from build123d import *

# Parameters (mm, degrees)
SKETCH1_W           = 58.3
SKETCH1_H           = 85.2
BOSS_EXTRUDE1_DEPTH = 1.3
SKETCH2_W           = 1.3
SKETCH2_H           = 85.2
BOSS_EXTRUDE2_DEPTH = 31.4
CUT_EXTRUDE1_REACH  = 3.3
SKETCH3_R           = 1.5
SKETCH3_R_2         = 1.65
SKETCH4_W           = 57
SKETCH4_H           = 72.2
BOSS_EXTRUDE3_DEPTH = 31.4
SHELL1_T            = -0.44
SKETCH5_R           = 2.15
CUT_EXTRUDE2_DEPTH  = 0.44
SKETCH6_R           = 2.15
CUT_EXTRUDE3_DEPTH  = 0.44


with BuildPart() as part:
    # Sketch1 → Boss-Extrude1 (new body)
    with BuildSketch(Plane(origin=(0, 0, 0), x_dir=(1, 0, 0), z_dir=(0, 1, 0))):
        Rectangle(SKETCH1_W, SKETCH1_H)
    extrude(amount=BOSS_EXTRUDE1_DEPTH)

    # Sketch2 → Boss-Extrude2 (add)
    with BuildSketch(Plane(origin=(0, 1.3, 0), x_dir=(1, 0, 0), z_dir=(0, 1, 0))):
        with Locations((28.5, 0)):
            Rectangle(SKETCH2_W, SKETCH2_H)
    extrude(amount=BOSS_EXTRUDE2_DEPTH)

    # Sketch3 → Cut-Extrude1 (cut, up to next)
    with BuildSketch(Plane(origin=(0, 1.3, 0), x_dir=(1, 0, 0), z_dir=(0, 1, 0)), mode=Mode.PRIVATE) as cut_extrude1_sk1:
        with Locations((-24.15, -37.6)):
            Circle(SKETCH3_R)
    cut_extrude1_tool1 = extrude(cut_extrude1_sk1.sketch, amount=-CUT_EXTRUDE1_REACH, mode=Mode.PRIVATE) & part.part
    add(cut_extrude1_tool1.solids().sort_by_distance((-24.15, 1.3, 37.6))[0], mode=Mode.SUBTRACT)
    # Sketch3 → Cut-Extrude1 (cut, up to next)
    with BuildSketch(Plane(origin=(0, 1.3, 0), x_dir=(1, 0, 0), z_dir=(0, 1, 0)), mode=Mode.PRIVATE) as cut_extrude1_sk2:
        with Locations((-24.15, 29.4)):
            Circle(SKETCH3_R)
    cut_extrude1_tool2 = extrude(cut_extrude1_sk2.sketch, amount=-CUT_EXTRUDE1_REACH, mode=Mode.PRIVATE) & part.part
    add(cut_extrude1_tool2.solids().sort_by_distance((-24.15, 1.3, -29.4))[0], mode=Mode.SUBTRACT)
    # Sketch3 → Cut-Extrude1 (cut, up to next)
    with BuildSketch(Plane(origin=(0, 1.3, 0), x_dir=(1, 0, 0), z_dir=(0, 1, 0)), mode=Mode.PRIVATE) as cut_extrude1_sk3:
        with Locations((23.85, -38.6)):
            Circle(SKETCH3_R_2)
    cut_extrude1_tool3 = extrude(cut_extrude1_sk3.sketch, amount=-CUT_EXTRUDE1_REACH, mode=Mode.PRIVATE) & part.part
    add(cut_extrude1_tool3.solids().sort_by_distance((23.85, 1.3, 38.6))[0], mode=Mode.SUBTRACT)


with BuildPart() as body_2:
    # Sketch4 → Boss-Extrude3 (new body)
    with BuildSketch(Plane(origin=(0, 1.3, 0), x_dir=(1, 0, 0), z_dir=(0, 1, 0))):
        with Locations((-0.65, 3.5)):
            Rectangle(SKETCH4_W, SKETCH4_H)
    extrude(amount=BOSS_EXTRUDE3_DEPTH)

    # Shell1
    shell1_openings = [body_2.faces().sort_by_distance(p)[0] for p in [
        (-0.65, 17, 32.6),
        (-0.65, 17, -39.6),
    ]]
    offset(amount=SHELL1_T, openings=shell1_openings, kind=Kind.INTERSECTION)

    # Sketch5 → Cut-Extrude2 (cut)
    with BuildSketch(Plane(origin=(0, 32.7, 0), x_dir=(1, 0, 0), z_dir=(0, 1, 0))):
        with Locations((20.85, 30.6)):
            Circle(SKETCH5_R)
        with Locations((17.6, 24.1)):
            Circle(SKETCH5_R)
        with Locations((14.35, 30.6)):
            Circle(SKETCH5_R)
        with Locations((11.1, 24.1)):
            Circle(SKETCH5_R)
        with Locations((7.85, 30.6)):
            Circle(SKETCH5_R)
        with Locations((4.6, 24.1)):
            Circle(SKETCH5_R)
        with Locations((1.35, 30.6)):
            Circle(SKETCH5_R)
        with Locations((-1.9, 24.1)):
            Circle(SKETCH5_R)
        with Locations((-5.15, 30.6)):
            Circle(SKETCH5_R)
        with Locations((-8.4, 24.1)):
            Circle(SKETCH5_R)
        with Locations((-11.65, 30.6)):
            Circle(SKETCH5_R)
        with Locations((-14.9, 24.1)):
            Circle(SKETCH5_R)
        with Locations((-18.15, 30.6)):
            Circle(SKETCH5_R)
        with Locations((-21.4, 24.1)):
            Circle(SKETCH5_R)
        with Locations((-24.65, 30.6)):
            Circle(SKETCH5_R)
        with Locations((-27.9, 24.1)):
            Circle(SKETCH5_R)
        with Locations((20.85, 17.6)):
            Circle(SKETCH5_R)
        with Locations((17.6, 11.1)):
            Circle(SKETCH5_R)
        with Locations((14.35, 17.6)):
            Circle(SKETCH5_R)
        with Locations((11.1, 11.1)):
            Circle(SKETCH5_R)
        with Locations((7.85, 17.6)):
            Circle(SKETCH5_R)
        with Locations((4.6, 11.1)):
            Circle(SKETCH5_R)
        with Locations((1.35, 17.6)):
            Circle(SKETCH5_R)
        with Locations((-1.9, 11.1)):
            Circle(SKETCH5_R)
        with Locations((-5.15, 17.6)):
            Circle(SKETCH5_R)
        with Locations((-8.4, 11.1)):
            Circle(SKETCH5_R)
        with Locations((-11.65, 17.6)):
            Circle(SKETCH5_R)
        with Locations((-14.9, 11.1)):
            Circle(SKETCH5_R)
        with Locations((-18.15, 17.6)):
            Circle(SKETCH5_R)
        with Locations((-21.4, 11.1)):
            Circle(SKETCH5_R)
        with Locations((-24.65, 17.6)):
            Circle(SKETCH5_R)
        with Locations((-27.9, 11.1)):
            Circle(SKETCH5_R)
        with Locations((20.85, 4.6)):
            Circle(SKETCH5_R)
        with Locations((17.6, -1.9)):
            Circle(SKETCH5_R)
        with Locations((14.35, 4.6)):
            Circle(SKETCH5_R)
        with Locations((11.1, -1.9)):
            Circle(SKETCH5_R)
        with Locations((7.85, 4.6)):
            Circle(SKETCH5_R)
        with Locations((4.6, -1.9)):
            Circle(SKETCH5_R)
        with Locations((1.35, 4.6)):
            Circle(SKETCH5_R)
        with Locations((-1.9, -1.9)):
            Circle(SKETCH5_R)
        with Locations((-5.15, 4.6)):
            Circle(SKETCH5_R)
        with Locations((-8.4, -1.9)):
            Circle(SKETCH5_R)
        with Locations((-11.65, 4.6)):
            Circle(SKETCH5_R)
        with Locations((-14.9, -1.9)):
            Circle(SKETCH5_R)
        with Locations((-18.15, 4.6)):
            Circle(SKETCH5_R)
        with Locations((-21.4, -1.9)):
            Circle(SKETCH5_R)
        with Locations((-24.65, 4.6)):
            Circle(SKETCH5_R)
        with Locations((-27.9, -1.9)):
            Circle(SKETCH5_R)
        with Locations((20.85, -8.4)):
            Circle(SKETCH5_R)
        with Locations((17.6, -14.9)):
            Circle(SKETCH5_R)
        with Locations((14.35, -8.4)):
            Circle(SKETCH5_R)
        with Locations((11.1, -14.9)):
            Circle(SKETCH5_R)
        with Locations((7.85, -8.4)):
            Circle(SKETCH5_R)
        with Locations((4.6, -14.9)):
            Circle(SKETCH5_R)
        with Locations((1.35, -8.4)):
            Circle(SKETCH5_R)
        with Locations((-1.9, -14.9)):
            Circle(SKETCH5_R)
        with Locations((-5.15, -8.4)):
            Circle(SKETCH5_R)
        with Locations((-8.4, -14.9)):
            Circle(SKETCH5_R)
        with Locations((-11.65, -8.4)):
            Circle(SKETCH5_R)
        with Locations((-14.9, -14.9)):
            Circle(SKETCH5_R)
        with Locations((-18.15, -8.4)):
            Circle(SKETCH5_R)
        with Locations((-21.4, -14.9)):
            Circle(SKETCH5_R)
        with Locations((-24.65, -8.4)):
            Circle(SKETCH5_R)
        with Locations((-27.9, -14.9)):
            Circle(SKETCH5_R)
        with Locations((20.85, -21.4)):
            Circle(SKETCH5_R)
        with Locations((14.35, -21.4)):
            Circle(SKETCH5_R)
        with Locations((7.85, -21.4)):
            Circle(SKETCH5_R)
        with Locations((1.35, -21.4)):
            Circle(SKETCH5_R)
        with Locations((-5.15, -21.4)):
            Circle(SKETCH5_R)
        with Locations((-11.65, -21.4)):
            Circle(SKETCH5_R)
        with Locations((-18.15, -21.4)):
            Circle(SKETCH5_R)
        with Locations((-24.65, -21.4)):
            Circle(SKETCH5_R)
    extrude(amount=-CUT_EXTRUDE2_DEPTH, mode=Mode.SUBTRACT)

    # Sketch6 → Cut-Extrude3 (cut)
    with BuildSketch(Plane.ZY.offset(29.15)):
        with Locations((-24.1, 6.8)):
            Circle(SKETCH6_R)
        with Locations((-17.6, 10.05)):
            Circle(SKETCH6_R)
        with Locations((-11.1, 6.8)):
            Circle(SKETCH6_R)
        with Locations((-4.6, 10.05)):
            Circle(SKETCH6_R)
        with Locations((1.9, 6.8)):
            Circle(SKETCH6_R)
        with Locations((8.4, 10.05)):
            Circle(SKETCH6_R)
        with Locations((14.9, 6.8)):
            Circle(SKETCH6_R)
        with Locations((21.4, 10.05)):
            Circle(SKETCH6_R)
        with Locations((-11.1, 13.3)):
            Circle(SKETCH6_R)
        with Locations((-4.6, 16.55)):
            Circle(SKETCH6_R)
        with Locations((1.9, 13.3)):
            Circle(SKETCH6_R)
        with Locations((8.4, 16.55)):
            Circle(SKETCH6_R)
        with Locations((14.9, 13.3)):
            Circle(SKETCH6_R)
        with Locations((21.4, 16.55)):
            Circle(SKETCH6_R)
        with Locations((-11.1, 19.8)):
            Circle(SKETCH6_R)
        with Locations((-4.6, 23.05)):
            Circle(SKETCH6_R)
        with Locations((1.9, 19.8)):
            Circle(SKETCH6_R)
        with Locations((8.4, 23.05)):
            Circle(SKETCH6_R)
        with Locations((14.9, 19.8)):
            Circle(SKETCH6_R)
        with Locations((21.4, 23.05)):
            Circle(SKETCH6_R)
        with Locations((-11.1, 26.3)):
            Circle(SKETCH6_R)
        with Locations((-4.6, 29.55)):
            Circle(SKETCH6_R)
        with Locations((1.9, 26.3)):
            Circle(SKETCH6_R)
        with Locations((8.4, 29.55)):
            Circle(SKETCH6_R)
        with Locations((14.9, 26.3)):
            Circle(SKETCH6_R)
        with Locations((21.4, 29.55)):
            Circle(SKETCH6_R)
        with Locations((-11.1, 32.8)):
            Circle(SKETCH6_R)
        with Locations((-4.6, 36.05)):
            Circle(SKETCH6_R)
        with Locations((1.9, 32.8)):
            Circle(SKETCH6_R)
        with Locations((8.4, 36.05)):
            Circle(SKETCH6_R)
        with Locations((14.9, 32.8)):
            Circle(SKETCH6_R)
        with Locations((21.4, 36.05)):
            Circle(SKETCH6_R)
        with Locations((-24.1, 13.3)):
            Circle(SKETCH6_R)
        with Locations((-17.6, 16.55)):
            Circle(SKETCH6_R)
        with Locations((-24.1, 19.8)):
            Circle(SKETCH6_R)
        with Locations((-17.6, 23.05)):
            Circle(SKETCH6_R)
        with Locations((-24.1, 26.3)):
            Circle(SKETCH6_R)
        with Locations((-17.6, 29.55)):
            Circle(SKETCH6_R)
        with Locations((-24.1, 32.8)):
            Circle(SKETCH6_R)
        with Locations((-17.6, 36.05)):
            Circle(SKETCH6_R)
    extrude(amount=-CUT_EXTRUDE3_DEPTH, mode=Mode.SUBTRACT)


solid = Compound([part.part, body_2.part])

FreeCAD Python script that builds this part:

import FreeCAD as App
import Part
import Sketcher
from FreeCAD import Vector
Q = App.Units.Quantity


def faces_at(feature, points):
    """Names of the faces that lie closest to the given points."""
    faces = feature.Shape.Faces
    near = lambda p: min(range(len(faces)), key=lambda i: faces[i].distToShape(Part.Vertex(*p))[0])
    return sorted({f"Face{near(p) + 1}" for p in points})


def add_polygon(sketch, points):
    """Adds a closed chain of lines whose ends are joined by coincident constraints."""
    first, n = sketch.GeometryCount, len(points)
    for a, b in zip(points, points[1:] + points[:1]):
        sketch.addGeometry(Part.LineSegment(App.Vector(*a, 0), App.Vector(*b, 0)), False)
    for i in range(n):
        sketch.addConstraint(Sketcher.Constraint("Coincident", first + i, 2, first + (i + 1) % n, 1))

doc = App.newDocument("Part")
params = doc.addObject("Spreadsheet::Sheet", "Params")
for row, (alias, value) in enumerate([
    ("sketch1_width", "58.3 mm"),
    ("sketch1_height", "85.2 mm"),
    ("pad1_length", "1.3 mm"),
    ("sketch2_width", "1.3 mm"),
    ("sketch2_height", "85.2 mm"),
    ("pad2_length", "31.4 mm"),
    ("sketch3_diameter", "3 mm"),
    ("sketch4_diameter", "3 mm"),
    ("sketch5_diameter", "3.3 mm"),
    ("sketch6_width", "57 mm"),
    ("sketch6_height", "72.2 mm"),
    ("pad3_length", "31.4 mm"),
    ("thickness_wall", "0.44 mm"),
    ("sketch7_diameter", "4.3 mm"),
    ("pocket4_length", "0.44 mm"),
    ("sketch8_diameter", "4.3 mm"),
    ("pocket5_length", "0.44 mm"),
], start=1):
    params.set(f"A{row}", alias)
    params.set(f"B{row}", "=" + value)
    params.setAlias(f"B{row}", alias)

body = doc.addObject("PartDesign::Body", "Body")

sketch1 = body.newObject("Sketcher::SketchObject", "Sketch")
sketch1.AttachmentSupport = (doc.getObject("XZ_Plane"), [""])
sketch1.MapMode = "FlatFace"
add_polygon(sketch1, [(-29, -43), (-29, 43), (29, 43), (29, -43)])
sketch1.addConstraint(Sketcher.Constraint("Vertical", 0))
sketch1.addConstraint(Sketcher.Constraint("Horizontal", 1))
sketch1.addConstraint(Sketcher.Constraint("Vertical", 2))
sketch1.addConstraint(Sketcher.Constraint("Horizontal", 3))
sketch1.addConstraint(Sketcher.Constraint("Symmetric", 0, 2, 2, 2, -1, 1))
sketch1.addConstraint(Sketcher.Constraint("DistanceX", 1, 1, 1, 2, Q("58.3 mm")))
sketch1.addConstraint(Sketcher.Constraint("DistanceY", 0, 1, 0, 2, Q("85.2 mm")))
sketch1.setExpression("Constraints[9]", "Params.sketch1_width")
sketch1.setExpression("Constraints[10]", "Params.sketch1_height")
pad1 = body.newObject("PartDesign::Pad", "Pad")
pad1.Profile = sketch1
pad1.setExpression("Length", "Params.pad1_length")
pad1.Reversed = True

sketch2 = body.newObject("Sketcher::SketchObject", "Sketch001")
sketch2.AttachmentSupport = (doc.getObject("XZ_Plane"), [""])
sketch2.MapMode = "FlatFace"
sketch2.AttachmentOffset = App.Placement(Vector(0, 0, -1.3), App.Rotation())
add_polygon(sketch2, [(27.9, -42.6), (27.9, 42.6), (29.1, 42.6), (29.1, -42.6)])
sketch2.addConstraint(Sketcher.Constraint("Vertical", 0))
sketch2.addConstraint(Sketcher.Constraint("Horizontal", 1))
sketch2.addConstraint(Sketcher.Constraint("Vertical", 2))
sketch2.addConstraint(Sketcher.Constraint("Horizontal", 3))
sketch2.addConstraint(Sketcher.Constraint("DistanceX", 1, 1, 1, 2, Q("1.3 mm")))
sketch2.addConstraint(Sketcher.Constraint("DistanceY", 0, 1, 0, 2, Q("85.2 mm")))
sketch2.addConstraint(Sketcher.Constraint("DistanceY", -1, 1, 0, 2, Q("42.6 mm")))
sketch2.addConstraint(Sketcher.Constraint("DistanceX", -1, 1, 0, 2, Q("27.85 mm")))
sketch2.setExpression("Constraints[8]", "Params.sketch2_width")
sketch2.setExpression("Constraints[9]", "Params.sketch2_height")
pad2 = body.newObject("PartDesign::Pad", "Pad001")
pad2.Profile = sketch2
pad2.setExpression("Length", "Params.pad2_length")
pad2.Reversed = True

sketch3 = body.newObject("Sketcher::SketchObject", "Sketch002")
sketch3.AttachmentSupport = (doc.getObject("XZ_Plane"), [""])
sketch3.MapMode = "FlatFace"
sketch3.AttachmentOffset = App.Placement(Vector(0, 0, -1.3), App.Rotation())
sketch3.addGeometry(Part.Circle(Vector(-24.1, 37.6, 0), Vector(0, 0, 1), 1.5), False)
sketch3.addConstraint(Sketcher.Constraint("Diameter", 0, Q("3 mm")))
sketch3.addConstraint(Sketcher.Constraint("DistanceY", -1, 1, 0, 3, Q("37.6 mm")))
sketch3.addConstraint(Sketcher.Constraint("DistanceX", 0, 3, -1, 1, Q("24.15 mm")))
sketch3.setExpression("Constraints[0]", "Params.sketch3_diameter")
pocket1 = body.newObject("PartDesign::Pocket", "Pocket")
pocket1.Profile = sketch3
pocket1.Type = "UpToFirst"
pocket1.Reversed = True

sketch4 = body.newObject("Sketcher::SketchObject", "Sketch003")
sketch4.AttachmentSupport = (doc.getObject("XZ_Plane"), [""])
sketch4.MapMode = "FlatFace"
sketch4.AttachmentOffset = App.Placement(Vector(0, 0, -1.3), App.Rotation())
sketch4.addGeometry(Part.Circle(Vector(-24.1, -29.4, 0), Vector(0, 0, 1), 1.5), False)
sketch4.addConstraint(Sketcher.Constraint("Diameter", 0, Q("3 mm")))
sketch4.addConstraint(Sketcher.Constraint("DistanceY", 0, 3, -1, 1, Q("29.4 mm")))
sketch4.addConstraint(Sketcher.Constraint("DistanceX", 0, 3, -1, 1, Q("24.15 mm")))
sketch4.setExpression("Constraints[0]", "Params.sketch4_diameter")
pocket2 = body.newObject("PartDesign::Pocket", "Pocket001")
pocket2.Profile = sketch4
pocket2.Type = "UpToFirst"
pocket2.Reversed = True

sketch5 = body.newObject("Sketcher::SketchObject", "Sketch004")
sketch5.AttachmentSupport = (doc.getObject("XZ_Plane"), [""])
sketch5.MapMode = "FlatFace"
sketch5.AttachmentOffset = App.Placement(Vector(0, 0, -1.3), App.Rotation())
sketch5.addGeometry(Part.Circle(Vector(23.9, 38.6, 0), Vector(0, 0, 1), 1.6), False)
sketch5.addConstraint(Sketcher.Constraint("Diameter", 0, Q("3.3 mm")))
sketch5.addConstraint(Sketcher.Constraint("DistanceY", -1, 1, 0, 3, Q("38.6 mm")))
sketch5.addConstraint(Sketcher.Constraint("DistanceX", -1, 1, 0, 3, Q("23.85 mm")))
sketch5.setExpression("Constraints[0]", "Params.sketch5_diameter")
pocket3 = body.newObject("PartDesign::Pocket", "Pocket002")
pocket3.Profile = sketch5
pocket3.Type = "UpToFirst"
pocket3.Reversed = True
body2 = doc.addObject("PartDesign::Body", "Body001")

sketch6 = body2.newObject("Sketcher::SketchObject", "Sketch005")
sketch6.AttachmentSupport = (doc.getObject("XZ_Plane001"), [""])
sketch6.MapMode = "FlatFace"
sketch6.AttachmentOffset = App.Placement(Vector(0, 0, -1.3), App.Rotation())
add_polygon(sketch6, [(-29, -40), (-29, 33), (28, 33), (28, -40)])
sketch6.addConstraint(Sketcher.Constraint("Vertical", 0))
sketch6.addConstraint(Sketcher.Constraint("Horizontal", 1))
sketch6.addConstraint(Sketcher.Constraint("Vertical", 2))
sketch6.addConstraint(Sketcher.Constraint("Horizontal", 3))
sketch6.addConstraint(Sketcher.Constraint("DistanceX", 1, 1, 1, 2, Q("57 mm")))
sketch6.addConstraint(Sketcher.Constraint("DistanceY", 0, 1, 0, 2, Q("72.2 mm")))
sketch6.addConstraint(Sketcher.Constraint("DistanceY", -1, 1, 0, 2, Q("32.6 mm")))
sketch6.addConstraint(Sketcher.Constraint("DistanceX", 0, 2, -1, 1, Q("29.15 mm")))
sketch6.setExpression("Constraints[8]", "Params.sketch6_width")
sketch6.setExpression("Constraints[9]", "Params.sketch6_height")
pad3 = body2.newObject("PartDesign::Pad", "Pad002")
pad3.Profile = sketch6
pad3.setExpression("Length", "Params.pad3_length")
pad3.Reversed = True
doc.recompute()

thickness = body2.newObject("PartDesign::Thickness", "Thickness")
thickness.Base = (pad3, faces_at(pad3, [(-0.65, 17, 32.6), (-0.65, 17, -39.6)]))
thickness.setExpression("Value", "Params.thickness_wall")
thickness.Reversed = True
thickness.Join = "Intersection"

sketch7 = body2.newObject("Sketcher::SketchObject", "Sketch006")
sketch7.AttachmentSupport = (doc.getObject("XZ_Plane001"), [""])
sketch7.MapMode = "FlatFace"
sketch7.AttachmentOffset = App.Placement(Vector(0, 0, -32.7), App.Rotation())
sketch7.addGeometry(Part.Circle(Vector(20.9, -30.6, 0), Vector(0, 0, 1), 2.1), False)
sketch7.addGeometry(Part.Circle(Vector(17.6, -24.1, 0), Vector(0, 0, 1), 2.1), False)
sketch7.addGeometry(Part.Circle(Vector(14.3, -30.6, 0), Vector(0, 0, 1), 2.1), False)
sketch7.addGeometry(Part.Circle(Vector(11.1, -24.1, 0), Vector(0, 0, 1), 2.1), False)
sketch7.addGeometry(Part.Circle(Vector(7.8, -30.6, 0), Vector(0, 0, 1), 2.1), False)
sketch7.addGeometry(Part.Circle(Vector(4.6, -24.1, 0), Vector(0, 0, 1), 2.1), False)
sketch7.addGeometry(Part.Circle(Vector(1.4, -30.6, 0), Vector(0, 0, 1), 2.1), False)
sketch7.addGeometry(Part.Circle(Vector(-1.9, -24.1, 0), Vector(0, 0, 1), 2.1), False)
sketch7.addGeometry(Part.Circle(Vector(-5.2, -30.6, 0), Vector(0, 0, 1), 2.1), False)
sketch7.addGeometry(Part.Circle(Vector(-8.4, -24.1, 0), Vector(0, 0, 1), 2.1), False)
sketch7.addGeometry(Part.Circle(Vector(-11.7, -30.6, 0), Vector(0, 0, 1), 2.1), False)
sketch7.addGeometry(Part.Circle(Vector(-14.9, -24.1, 0), Vector(0, 0, 1), 2.1), False)
sketch7.addGeometry(Part.Circle(Vector(-18.1, -30.6, 0), Vector(0, 0, 1), 2.1), False)
sketch7.addGeometry(Part.Circle(Vector(-21.4, -24.1, 0), Vector(0, 0, 1), 2.1), False)
sketch7.addGeometry(Part.Circle(Vector(-24.6, -30.6, 0), Vector(0, 0, 1), 2.1), False)
sketch7.addGeometry(Part.Circle(Vector(-27.9, -24.1, 0), Vector(0, 0, 1), 2.1), False)
sketch7.addGeometry(Part.Circle(Vector(20.9, -17.6, 0), Vector(0, 0, 1), 2.1), False)
sketch7.addGeometry(Part.Circle(Vector(17.6, -11.1, 0), Vector(0, 0, 1), 2.1), False)
sketch7.addGeometry(Part.Circle(Vector(14.3, -17.6, 0), Vector(0, 0, 1), 2.1), False)
sketch7.addGeometry(Part.Circle(Vector(11.1, -11.1, 0), Vector(0, 0, 1), 2.1), False)
sketch7.addGeometry(Part.Circle(Vector(7.8, -17.6, 0), Vector(0, 0, 1), 2.1), False)
sketch7.addGeometry(Part.Circle(Vector(4.6, -11.1, 0), Vector(0, 0, 1), 2.1), False)
sketch7.addGeometry(Part.Circle(Vector(1.4, -17.6, 0), Vector(0, 0, 1), 2.1), False)
sketch7.addGeometry(Part.Circle(Vector(-1.9, -11.1, 0), Vector(0, 0, 1), 2.1), False)
sketch7.addGeometry(Part.Circle(Vector(-5.2, -17.6, 0), Vector(0, 0, 1), 2.1), False)
sketch7.addGeometry(Part.Circle(Vector(-8.4, -11.1, 0), Vector(0, 0, 1), 2.1), False)
sketch7.addGeometry(Part.Circle(Vector(-11.7, -17.6, 0), Vector(0, 0, 1), 2.1), False)
sketch7.addGeometry(Part.Circle(Vector(-14.9, -11.1, 0), Vector(0, 0, 1), 2.1), False)
sketch7.addGeometry(Part.Circle(Vector(-18.1, -17.6, 0), Vector(0, 0, 1), 2.1), False)
sketch7.addGeometry(Part.Circle(Vector(-21.4, -11.1, 0), Vector(0, 0, 1), 2.1), False)
sketch7.addGeometry(Part.Circle(Vector(-24.6, -17.6, 0), Vector(0, 0, 1), 2.1), False)
sketch7.addGeometry(Part.Circle(Vector(-27.9, -11.1, 0), Vector(0, 0, 1), 2.1), False)
sketch7.addGeometry(Part.Circle(Vector(20.9, -4.6, 0), Vector(0, 0, 1), 2.1), False)
sketch7.addGeometry(Part.Circle(Vector(17.6, 1.9, 0), Vector(0, 0, 1), 2.1), False)
sketch7.addGeometry(Part.Circle(Vector(14.3, -4.6, 0), Vector(0, 0, 1), 2.1), False)
sketch7.addGeometry(Part.Circle(Vector(11.1, 1.9, 0), Vector(0, 0, 1), 2.1), False)
sketch7.addGeometry(Part.Circle(Vector(7.8, -4.6, 0), Vector(0, 0, 1), 2.1), False)
sketch7.addGeometry(Part.Circle(Vector(4.6, 1.9, 0), Vector(0, 0, 1), 2.1), False)
sketch7.addGeometry(Part.Circle(Vector(1.4, -4.6, 0), Vector(0, 0, 1), 2.1), False)
sketch7.addGeometry(Part.Circle(Vector(-1.9, 1.9, 0), Vector(0, 0, 1), 2.1), False)
sketch7.addGeometry(Part.Circle(Vector(-5.2, -4.6, 0), Vector(0, 0, 1), 2.1), False)
sketch7.addGeometry(Part.Circle(Vector(-8.4, 1.9, 0), Vector(0, 0, 1), 2.1), False)
sketch7.addGeometry(Part.Circle(Vector(-11.7, -4.6, 0), Vector(0, 0, 1), 2.1), False)
sketch7.addGeometry(Part.Circle(Vector(-14.9, 1.9, 0), Vector(0, 0, 1), 2.1), False)
sketch7.addGeometry(Part.Circle(Vector(-18.1, -4.6, 0), Vector(0, 0, 1), 2.1), False)
sketch7.addGeometry(Part.Circle(Vector(-21.4, 1.9, 0), Vector(0, 0, 1), 2.1), False)
sketch7.addGeometry(Part.Circle(Vector(-24.6, -4.6, 0), Vector(0, 0, 1), 2.1), False)
sketch7.addGeometry(Part.Circle(Vector(-27.9, 1.9, 0), Vector(0, 0, 1), 2.1), False)
sketch7.addGeometry(Part.Circle(Vector(20.9, 8.4, 0), Vector(0, 0, 1), 2.1), False)
sketch7.addGeometry(Part.Circle(Vector(17.6, 14.9, 0), Vector(0, 0, 1), 2.1), False)
sketch7.addGeometry(Part.Circle(Vector(14.3, 8.4, 0), Vector(0, 0, 1), 2.1), False)
sketch7.addGeometry(Part.Circle(Vector(11.1, 14.9, 0), Vector(0, 0, 1), 2.1), False)
sketch7.addGeometry(Part.Circle(Vector(7.8, 8.4, 0), Vector(0, 0, 1), 2.1), False)
sketch7.addGeometry(Part.Circle(Vector(4.6, 14.9, 0), Vector(0, 0, 1), 2.1), False)
sketch7.addGeometry(Part.Circle(Vector(1.4, 8.4, 0), Vector(0, 0, 1), 2.1), False)
sketch7.addGeometry(Part.Circle(Vector(-1.9, 14.9, 0), Vector(0, 0, 1), 2.1), False)
sketch7.addGeometry(Part.Circle(Vector(-5.2, 8.4, 0), Vector(0, 0, 1), 2.1), False)
sketch7.addGeometry(Part.Circle(Vector(-8.4, 14.9, 0), Vector(0, 0, 1), 2.1), False)
sketch7.addGeometry(Part.Circle(Vector(-11.7, 8.4, 0), Vector(0, 0, 1), 2.1), False)
sketch7.addGeometry(Part.Circle(Vector(-14.9, 14.9, 0), Vector(0, 0, 1), 2.1), False)
sketch7.addGeometry(Part.Circle(Vector(-18.1, 8.4, 0), Vector(0, 0, 1), 2.1), False)
sketch7.addGeometry(Part.Circle(Vector(-21.4, 14.9, 0), Vector(0, 0, 1), 2.1), False)
sketch7.addGeometry(Part.Circle(Vector(-24.6, 8.4, 0), Vector(0, 0, 1), 2.1), False)
sketch7.addGeometry(Part.Circle(Vector(-27.9, 14.9, 0), Vector(0, 0, 1), 2.1), False)
sketch7.addGeometry(Part.Circle(Vector(20.9, 21.4, 0), Vector(0, 0, 1), 2.1), False)
sketch7.addGeometry(Part.Circle(Vector(14.3, 21.4, 0), Vector(0, 0, 1), 2.1), False)
sketch7.addGeometry(Part.Circle(Vector(7.8, 21.4, 0), Vector(0, 0, 1), 2.1), False)
sketch7.addGeometry(Part.Circle(Vector(1.4, 21.4, 0), Vector(0, 0, 1), 2.1), False)
sketch7.addGeometry(Part.Circle(Vector(-5.2, 21.4, 0), Vector(0, 0, 1), 2.1), False)
sketch7.addGeometry(Part.Circle(Vector(-11.7, 21.4, 0), Vector(0, 0, 1), 2.1), False)
sketch7.addGeometry(Part.Circle(Vector(-18.1, 21.4, 0), Vector(0, 0, 1), 2.1), False)
sketch7.addGeometry(Part.Circle(Vector(-24.6, 21.4, 0), Vector(0, 0, 1), 2.1), False)
sketch7.addConstraint(Sketcher.Constraint("Equal", 0, 1))
sketch7.addConstraint(Sketcher.Constraint("Equal", 1, 2))
sketch7.addConstraint(Sketcher.Constraint("Equal", 2, 3))
sketch7.addConstraint(Sketcher.Constraint("Equal", 3, 4))
sketch7.addConstraint(Sketcher.Constraint("Equal", 4, 5))
sketch7.addConstraint(Sketcher.Constraint("Equal", 5, 6))
sketch7.addConstraint(Sketcher.Constraint("Equal", 6, 7))
sketch7.addConstraint(Sketcher.Constraint("Equal", 7, 8))
sketch7.addConstraint(Sketcher.Constraint("Equal", 8, 9))
sketch7.addConstraint(Sketcher.Constraint("Equal", 9, 10))
sketch7.addConstraint(Sketcher.Constraint("Equal", 10, 11))
sketch7.addConstraint(Sketcher.Constraint("Equal", 11, 12))
sketch7.addConstraint(Sketcher.Constraint("Equal", 12, 13))
sketch7.addConstraint(Sketcher.Constraint("Equal", 13, 14))
sketch7.addConstraint(Sketcher.Constraint("Equal", 14, 15))
sketch7.addConstraint(Sketcher.Constraint("Equal", 15, 16))
sketch7.addConstraint(Sketcher.Constraint("Equal", 16, 17))
sketch7.addConstraint(Sketcher.Constraint("Equal", 17, 18))
sketch7.addConstraint(Sketcher.Constraint("Equal", 18, 19))
sketch7.addConstraint(Sketcher.Constraint("Equal", 19, 20))
sketch7.addConstraint(Sketcher.Constraint("Equal", 20, 21))
sketch7.addConstraint(Sketcher.Constraint("Equal", 21, 22))
sketch7.addConstraint(Sketcher.Constraint("Equal", 22, 23))
sketch7.addConstraint(Sketcher.Constraint("Equal", 23, 24))
sketch7.addConstraint(Sketcher.Constraint("Equal", 24, 25))
sketch7.addConstraint(Sketcher.Constraint("Equal", 25, 26))
sketch7.addConstraint(Sketcher.Constraint("Equal", 26, 27))
sketch7.addConstraint(Sketcher.Constraint("Equal", 27, 28))
sketch7.addConstraint(Sketcher.Constraint("Equal", 28, 29))
sketch7.addConstraint(Sketcher.Constraint("Equal", 29, 30))
sketch7.addConstraint(Sketcher.Constraint("Equal", 30, 31))
sketch7.addConstraint(Sketcher.Constraint("Equal", 31, 32))
sketch7.addConstraint(Sketcher.Constraint("Equal", 32, 33))
sketch7.addConstraint(Sketcher.Constraint("Equal", 33, 34))
sketch7.addConstraint(Sketcher.Constraint("Equal", 34, 35))
sketch7.addConstraint(Sketcher.Constraint("Equal", 35, 36))
sketch7.addConstraint(Sketcher.Constraint("Equal", 36, 37))
sketch7.addConstraint(Sketcher.Constraint("Equal", 37, 38))
sketch7.addConstraint(Sketcher.Constraint("Equal", 38, 39))
sketch7.addConstraint(Sketcher.Constraint("Equal", 39, 40))
sketch7.addConstraint(Sketcher.Constraint("Equal", 40, 41))
sketch7.addConstraint(Sketcher.Constraint("Equal", 41, 42))
sketch7.addConstraint(Sketcher.Constraint("Equal", 42, 43))
sketch7.addConstraint(Sketcher.Constraint("Equal", 43, 44))
sketch7.addConstraint(Sketcher.Constraint("Equal", 44, 45))
sketch7.addConstraint(Sketcher.Constraint("Equal", 45, 46))
sketch7.addConstraint(Sketcher.Constraint("Equal", 46, 47))
sketch7.addConstraint(Sketcher.Constraint("Equal", 47, 48))
sketch7.addConstraint(Sketcher.Constraint("Equal", 48, 49))
sketch7.addConstraint(Sketcher.Constraint("Equal", 49, 50))
sketch7.addConstraint(Sketcher.Constraint("Equal", 50, 51))
sketch7.addConstraint(Sketcher.Constraint("Equal", 51, 52))
sketch7.addConstraint(Sketcher.Constraint("Equal", 52, 53))
sketch7.addConstraint(Sketcher.Constraint("Equal", 53, 54))
sketch7.addConstraint(Sketcher.Constraint("Equal", 54, 55))
sketch7.addConstraint(Sketcher.Constraint("Equal", 55, 56))
sketch7.addConstraint(Sketcher.Constraint("Equal", 56, 57))
sketch7.addConstraint(Sketcher.Constraint("Equal", 57, 58))
sketch7.addConstraint(Sketcher.Constraint("Equal", 58, 59))
sketch7.addConstraint(Sketcher.Constraint("Equal", 59, 60))
sketch7.addConstraint(Sketcher.Constraint("Equal", 60, 61))
sketch7.addConstraint(Sketcher.Constraint("Equal", 61, 62))
sketch7.addConstraint(Sketcher.Constraint("Equal", 62, 63))
sketch7.addConstraint(Sketcher.Constraint("Equal", 63, 64))
sketch7.addConstraint(Sketcher.Constraint("Equal", 64, 65))
sketch7.addConstraint(Sketcher.Constraint("Equal", 65, 66))
sketch7.addConstraint(Sketcher.Constraint("Equal", 66, 67))
sketch7.addConstraint(Sketcher.Constraint("Equal", 67, 68))
sketch7.addConstraint(Sketcher.Constraint("Equal", 68, 69))
sketch7.addConstraint(Sketcher.Constraint("Equal", 69, 70))
sketch7.addConstraint(Sketcher.Constraint("Equal", 70, 71))
sketch7.addConstraint(Sketcher.Constraint("Horizontal", 0, 3, 2, 3))
sketch7.addConstraint(Sketcher.Constraint("Horizontal", 1, 3, 3, 3))
sketch7.addConstraint(Sketcher.Constraint("Horizontal", 2, 3, 4, 3))
sketch7.addConstraint(Sketcher.Constraint("Horizontal", 3, 3, 5, 3))
sketch7.addConstraint(Sketcher.Constraint("Horizontal", 4, 3, 6, 3))
sketch7.addConstraint(Sketcher.Constraint("Horizontal", 5, 3, 7, 3))
sketch7.addConstraint(Sketcher.Constraint("Horizontal", 6, 3, 8, 3))
sketch7.addConstraint(Sketcher.Constraint("Horizontal", 7, 3, 9, 3))
sketch7.addConstraint(Sketcher.Constraint("Horizontal", 8, 3, 10, 3))
sketch7.addConstraint(Sketcher.Constraint("Horizontal", 9, 3, 11, 3))
sketch7.addConstraint(Sketcher.Constraint("Horizontal", 10, 3, 12, 3))
sketch7.addConstraint(Sketcher.Constraint("Horizontal", 11, 3, 13, 3))
sketch7.addConstraint(Sketcher.Constraint("Horizontal", 12, 3, 14, 3))
sketch7.addConstraint(Sketcher.Constraint("Horizontal", 13, 3, 15, 3))
sketch7.addConstraint(Sketcher.Constraint("Horizontal", 16, 3, 18, 3))
sketch7.addConstraint(Sketcher.Constraint("Horizontal", 17, 3, 19, 3))
sketch7.addConstraint(Sketcher.Constraint("Horizontal", 18, 3, 20, 3))
sketch7.addConstraint(Sketcher.Constraint("Horizontal", 19, 3, 21, 3))
sketch7.addConstraint(Sketcher.Constraint("Horizontal", 20, 3, 22, 3))
sketch7.addConstraint(Sketcher.Constraint("Horizontal", 21, 3, 23, 3))
sketch7.addConstraint(Sketcher.Constraint("Horizontal", 22, 3, 24, 3))
sketch7.addConstraint(Sketcher.Constraint("Horizontal", 23, 3, 25, 3))
sketch7.addConstraint(Sketcher.Constraint("Horizontal", 24, 3, 26, 3))
sketch7.addConstraint(Sketcher.Constraint("Horizontal", 25, 3, 27, 3))
sketch7.addConstraint(Sketcher.Constraint("Horizontal", 26, 3, 28, 3))
sketch7.addConstraint(Sketcher.Constraint("Horizontal", 27, 3, 29, 3))
sketch7.addConstraint(Sketcher.Constraint("Horizontal", 28, 3, 30, 3))
sketch7.addConstraint(Sketcher.Constraint("Horizontal", 29, 3, 31, 3))
sketch7.addConstraint(Sketcher.Constraint("Horizontal", 32, 3, 34, 3))
sketch7.addConstraint(Sketcher.Constraint("Horizontal", 33, 3, 35, 3))
sketch7.addConstraint(Sketcher.Constraint("Horizontal", 34, 3, 36, 3))
sketch7.addConstraint(Sketcher.Constraint("Horizontal", 35, 3, 37, 3))
sketch7.addConstraint(Sketcher.Constraint("Horizontal", 36, 3, 38, 3))
sketch7.addConstraint(Sketcher.Constraint("Horizontal", 37, 3, 39, 3))
sketch7.addConstraint(Sketcher.Constraint("Horizontal", 38, 3, 40, 3))
sketch7.addConstraint(Sketcher.Constraint("Horizontal", 39, 3, 41, 3))
sketch7.addConstraint(Sketcher.Constraint("Horizontal", 40, 3, 42, 3))
sketch7.addConstraint(Sketcher.Constraint("Horizontal", 41, 3, 43, 3))
sketch7.addConstraint(Sketcher.Constraint("Horizontal", 42, 3, 44, 3))
sketch7.addConstraint(Sketcher.Constraint("Horizontal", 43, 3, 45, 3))
sketch7.addConstraint(Sketcher.Constraint("Horizontal", 44, 3, 46, 3))
sketch7.addConstraint(Sketcher.Constraint("Horizontal", 45, 3, 47, 3))
sketch7.addConstraint(Sketcher.Constraint("Horizontal", 48, 3, 50, 3))
sketch7.addConstraint(Sketcher.Constraint("Horizontal", 49, 3, 51, 3))
sketch7.addConstraint(Sketcher.Constraint("Horizontal", 50, 3, 52, 3))
sketch7.addConstraint(Sketcher.Constraint("Horizontal", 51, 3, 53, 3))
sketch7.addConstraint(Sketcher.Constraint("Horizontal", 52, 3, 54, 3))
sketch7.addConstraint(Sketcher.Constraint("Horizontal", 53, 3, 55, 3))
sketch7.addConstraint(Sketcher.Constraint("Horizontal", 54, 3, 56, 3))
sketch7.addConstraint(Sketcher.Constraint("Horizontal", 55, 3, 57, 3))
sketch7.addConstraint(Sketcher.Constraint("Horizontal", 56, 3, 58, 3))
sketch7.addConstraint(Sketcher.Constraint("Horizontal", 57, 3, 59, 3))
sketch7.addConstraint(Sketcher.Constraint("Horizontal", 58, 3, 60, 3))
sketch7.addConstraint(Sketcher.Constraint("Horizontal", 59, 3, 61, 3))
sketch7.addConstraint(Sketcher.Constraint("Horizontal", 60, 3, 62, 3))
sketch7.addConstraint(Sketcher.Constraint("Horizontal", 61, 3, 63, 3))
sketch7.addConstraint(Sketcher.Constraint("Horizontal", 64, 3, 65, 3))
sketch7.addConstraint(Sketcher.Constraint("Horizontal", 65, 3, 66, 3))
sketch7.addConstraint(Sketcher.Constraint("Horizontal", 66, 3, 67, 3))
sketch7.addConstraint(Sketcher.Constraint("Horizontal", 67, 3, 68, 3))
sketch7.addConstraint(Sketcher.Constraint("Horizontal", 68, 3, 69, 3))
sketch7.addConstraint(Sketcher.Constraint("Horizontal", 69, 3, 70, 3))
sketch7.addConstraint(Sketcher.Constraint("Horizontal", 70, 3, 71, 3))
sketch7.addConstraint(Sketcher.Constraint("Vertical", 0, 3, 16, 3))
sketch7.addConstraint(Sketcher.Constraint("Vertical", 1, 3, 17, 3))
sketch7.addConstraint(Sketcher.Constraint("Vertical", 2, 3, 18, 3))
sketch7.addConstraint(Sketcher.Constraint("Vertical", 3, 3, 19, 3))
sketch7.addConstraint(Sketcher.Constraint("Vertical", 4, 3, 20, 3))
sketch7.addConstraint(Sketcher.Constraint("Vertical", 5, 3, 21, 3))
sketch7.addConstraint(Sketcher.Constraint("Vertical", 6, 3, 22, 3))
sketch7.addConstraint(Sketcher.Constraint("Vertical", 7, 3, 23, 3))
sketch7.addConstraint(Sketcher.Constraint("Vertical", 8, 3, 24, 3))
sketch7.addConstraint(Sketcher.Constraint("Vertical", 9, 3, 25, 3))
sketch7.addConstraint(Sketcher.Constraint("Vertical", 10, 3, 26, 3))
sketch7.addConstraint(Sketcher.Constraint("Vertical", 11, 3, 27, 3))
sketch7.addConstraint(Sketcher.Constraint("Vertical", 12, 3, 28, 3))
sketch7.addConstraint(Sketcher.Constraint("Vertical", 13, 3, 29, 3))
sketch7.addConstraint(Sketcher.Constraint("Vertical", 14, 3, 30, 3))
sketch7.addConstraint(Sketcher.Constraint("Vertical", 15, 3, 31, 3))
sketch7.addConstraint(Sketcher.Constraint("Vertical", 16, 3, 32, 3))
sketch7.addConstraint(Sketcher.Constraint("Vertical", 17, 3, 33, 3))
sketch7.addConstraint(Sketcher.Constraint("Vertical", 18, 3, 34, 3))
sketch7.addConstraint(Sketcher.Constraint("Vertical", 19, 3, 35, 3))
sketch7.addConstraint(Sketcher.Constraint("Vertical", 20, 3, 36, 3))
sketch7.addConstraint(Sketcher.Constraint("Vertical", 21, 3, 37, 3))
sketch7.addConstraint(Sketcher.Constraint("Vertical", 22, 3, 38, 3))
sketch7.addConstraint(Sketcher.Constraint("Vertical", 23, 3, 39, 3))
sketch7.addConstraint(Sketcher.Constraint("Vertical", 24, 3, 40, 3))
sketch7.addConstraint(Sketcher.Constraint("Vertical", 25, 3, 41, 3))
sketch7.addConstraint(Sketcher.Constraint("Vertical", 26, 3, 42, 3))
sketch7.addConstraint(Sketcher.Constraint("Vertical", 27, 3, 43, 3))
sketch7.addConstraint(Sketcher.Constraint("Vertical", 28, 3, 44, 3))
sketch7.addConstraint(Sketcher.Constraint("Vertical", 29, 3, 45, 3))
sketch7.addConstraint(Sketcher.Constraint("Vertical", 30, 3, 46, 3))
sketch7.addConstraint(Sketcher.Constraint("Vertical", 31, 3, 47, 3))
sketch7.addConstraint(Sketcher.Constraint("Vertical", 32, 3, 48, 3))
sketch7.addConstraint(Sketcher.Constraint("Vertical", 33, 3, 49, 3))
sketch7.addConstraint(Sketcher.Constraint("Vertical", 34, 3, 50, 3))
sketch7.addConstraint(Sketcher.Constraint("Vertical", 35, 3, 51, 3))
sketch7.addConstraint(Sketcher.Constraint("Vertical", 36, 3, 52, 3))
sketch7.addConstraint(Sketcher.Constraint("Vertical", 37, 3, 53, 3))
sketch7.addConstraint(Sketcher.Constraint("Vertical", 38, 3, 54, 3))
sketch7.addConstraint(Sketcher.Constraint("Vertical", 39, 3, 55, 3))
sketch7.addConstraint(Sketcher.Constraint("Vertical", 40, 3, 56, 3))
sketch7.addConstraint(Sketcher.Constraint("Vertical", 41, 3, 57, 3))
sketch7.addConstraint(Sketcher.Constraint("Vertical", 42, 3, 58, 3))
sketch7.addConstraint(Sketcher.Constraint("Vertical", 43, 3, 59, 3))
sketch7.addConstraint(Sketcher.Constraint("Vertical", 44, 3, 60, 3))
sketch7.addConstraint(Sketcher.Constraint("Vertical", 45, 3, 61, 3))
sketch7.addConstraint(Sketcher.Constraint("Vertical", 46, 3, 62, 3))
sketch7.addConstraint(Sketcher.Constraint("Vertical", 47, 3, 63, 3))
sketch7.addConstraint(Sketcher.Constraint("Vertical", 48, 3, 64, 3))
sketch7.addConstraint(Sketcher.Constraint("Vertical", 50, 3, 65, 3))
sketch7.addConstraint(Sketcher.Constraint("Vertical", 52, 3, 66, 3))
sketch7.addConstraint(Sketcher.Constraint("Vertical", 54, 3, 67, 3))
sketch7.addConstraint(Sketcher.Constraint("Vertical", 56, 3, 68, 3))
sketch7.addConstraint(Sketcher.Constraint("Vertical", 58, 3, 69, 3))
sketch7.addConstraint(Sketcher.Constraint("Vertical", 60, 3, 70, 3))
sketch7.addConstraint(Sketcher.Constraint("Vertical", 62, 3, 71, 3))
sketch7.addConstraint(Sketcher.Constraint("Diameter", 0, Q("4.3 mm")))
sketch7.addConstraint(Sketcher.Constraint("DistanceY", 0, 3, -1, 1, Q("30.6 mm")))
sketch7.addConstraint(Sketcher.Constraint("DistanceX", -1, 1, 1, 3, Q("17.6 mm")))
sketch7.addConstraint(Sketcher.Constraint("DistanceY", 1, 3, -1, 1, Q("24.1 mm")))
sketch7.addConstraint(Sketcher.Constraint("DistanceX", -1, 1, 3, 3, Q("11.1 mm")))
sketch7.addConstraint(Sketcher.Constraint("DistanceX", -1, 1, 5, 3, Q("4.6 mm")))
sketch7.addConstraint(Sketcher.Constraint("DistanceX", 7, 3, -1, 1, Q("1.9 mm")))
sketch7.addConstraint(Sketcher.Constraint("DistanceX", 9, 3, -1, 1, Q("8.4 mm")))
sketch7.addConstraint(Sketcher.Constraint("DistanceX", 11, 3, -1, 1, Q("14.9 mm")))
sketch7.addConstraint(Sketcher.Constraint("DistanceX", 13, 3, -1, 1, Q("21.4 mm")))
sketch7.addConstraint(Sketcher.Constraint("DistanceX", 15, 3, -1, 1, Q("27.9 mm")))
sketch7.addConstraint(Sketcher.Constraint("DistanceY", 16, 3, -1, 1, Q("17.6 mm")))
sketch7.addConstraint(Sketcher.Constraint("DistanceY", 17, 3, -1, 1, Q("11.1 mm")))
sketch7.addConstraint(Sketcher.Constraint("DistanceY", 32, 3, -1, 1, Q("4.6 mm")))
sketch7.addConstraint(Sketcher.Constraint("DistanceY", -1, 1, 33, 3, Q("1.9 mm")))
sketch7.addConstraint(Sketcher.Constraint("DistanceY", -1, 1, 48, 3, Q("8.4 mm")))
sketch7.addConstraint(Sketcher.Constraint("DistanceY", -1, 1, 49, 3, Q("14.9 mm")))
sketch7.addConstraint(Sketcher.Constraint("DistanceY", -1, 1, 64, 3, Q("21.4 mm")))
sketch7.addConstraint(Sketcher.Constraint("DistanceX", -1, 1, 0, 3, Q("20.85 mm")))
sketch7.addConstraint(Sketcher.Constraint("DistanceX", -1, 1, 2, 3, Q("14.35 mm")))
sketch7.addConstraint(Sketcher.Constraint("DistanceX", -1, 1, 4, 3, Q("7.85 mm")))
sketch7.addConstraint(Sketcher.Constraint("DistanceX", -1, 1, 6, 3, Q("1.35 mm")))
sketch7.addConstraint(Sketcher.Constraint("DistanceX", 8, 3, -1, 1, Q("5.15 mm")))
sketch7.addConstraint(Sketcher.Constraint("DistanceX", 10, 3, -1, 1, Q("11.65 mm")))
sketch7.addConstraint(Sketcher.Constraint("DistanceX", 12, 3, -1, 1, Q("18.15 mm")))
sketch7.addConstraint(Sketcher.Constraint("DistanceX", 14, 3, -1, 1, Q("24.65 mm")))
sketch7.setExpression("Constraints[190]", "Params.sketch7_diameter")
pocket4 = body2.newObject("PartDesign::Pocket", "Pocket003")
pocket4.Profile = sketch7
pocket4.setExpression("Length", "Params.pocket4_length")
pocket4.Reversed = True

sketch8 = body2.newObject("Sketcher::SketchObject", "Sketch007")
sketch8.AttachmentSupport = (doc.getObject("YZ_Plane001"), [""])
sketch8.MapMode = "FlatFace"
sketch8.AttachmentOffset = App.Placement(Vector(0, 0, -29.15), App.Rotation())
sketch8.addGeometry(Part.Circle(Vector(6.8, -24.1, 0), Vector(0, 0, 1), 2.1), False)
sketch8.addGeometry(Part.Circle(Vector(10.1, -17.6, 0), Vector(0, 0, 1), 2.1), False)
sketch8.addGeometry(Part.Circle(Vector(6.8, -11.1, 0), Vector(0, 0, 1), 2.1), False)
sketch8.addGeometry(Part.Circle(Vector(10.1, -4.6, 0), Vector(0, 0, 1), 2.1), False)
sketch8.addGeometry(Part.Circle(Vector(6.8, 1.9, 0), Vector(0, 0, 1), 2.1), False)
sketch8.addGeometry(Part.Circle(Vector(10.1, 8.4, 0), Vector(0, 0, 1), 2.1), False)
sketch8.addGeometry(Part.Circle(Vector(6.8, 14.9, 0), Vector(0, 0, 1), 2.1), False)
sketch8.addGeometry(Part.Circle(Vector(10.1, 21.4, 0), Vector(0, 0, 1), 2.1), False)
sketch8.addGeometry(Part.Circle(Vector(13.3, -11.1, 0), Vector(0, 0, 1), 2.1), False)
sketch8.addGeometry(Part.Circle(Vector(16.6, -4.6, 0), Vector(0, 0, 1), 2.1), False)
sketch8.addGeometry(Part.Circle(Vector(13.3, 1.9, 0), Vector(0, 0, 1), 2.1), False)
sketch8.addGeometry(Part.Circle(Vector(16.6, 8.4, 0), Vector(0, 0, 1), 2.1), False)
sketch8.addGeometry(Part.Circle(Vector(13.3, 14.9, 0), Vector(0, 0, 1), 2.1), False)
sketch8.addGeometry(Part.Circle(Vector(16.6, 21.4, 0), Vector(0, 0, 1), 2.1), False)
sketch8.addGeometry(Part.Circle(Vector(19.8, -11.1, 0), Vector(0, 0, 1), 2.1), False)
sketch8.addGeometry(Part.Circle(Vector(23.1, -4.6, 0), Vector(0, 0, 1), 2.1), False)
sketch8.addGeometry(Part.Circle(Vector(19.8, 1.9, 0), Vector(0, 0, 1), 2.1), False)
sketch8.addGeometry(Part.Circle(Vector(23.1, 8.4, 0), Vector(0, 0, 1), 2.1), False)
sketch8.addGeometry(Part.Circle(Vector(19.8, 14.9, 0), Vector(0, 0, 1), 2.1), False)
sketch8.addGeometry(Part.Circle(Vector(23.1, 21.4, 0), Vector(0, 0, 1), 2.1), False)
sketch8.addGeometry(Part.Circle(Vector(26.3, -11.1, 0), Vector(0, 0, 1), 2.1), False)
sketch8.addGeometry(Part.Circle(Vector(29.6, -4.6, 0), Vector(0, 0, 1), 2.1), False)
sketch8.addGeometry(Part.Circle(Vector(26.3, 1.9, 0), Vector(0, 0, 1), 2.1), False)
sketch8.addGeometry(Part.Circle(Vector(29.6, 8.4, 0), Vector(0, 0, 1), 2.1), False)
sketch8.addGeometry(Part.Circle(Vector(26.3, 14.9, 0), Vector(0, 0, 1), 2.1), False)
sketch8.addGeometry(Part.Circle(Vector(29.6, 21.4, 0), Vector(0, 0, 1), 2.1), False)
sketch8.addGeometry(Part.Circle(Vector(32.8, -11.1, 0), Vector(0, 0, 1), 2.1), False)
sketch8.addGeometry(Part.Circle(Vector(36, -4.6, 0), Vector(0, 0, 1), 2.1), False)
sketch8.addGeometry(Part.Circle(Vector(32.8, 1.9, 0), Vector(0, 0, 1), 2.1), False)
sketch8.addGeometry(Part.Circle(Vector(36, 8.4, 0), Vector(0, 0, 1), 2.1), False)
sketch8.addGeometry(Part.Circle(Vector(32.8, 14.9, 0), Vector(0, 0, 1), 2.1), False)
sketch8.addGeometry(Part.Circle(Vector(36, 21.4, 0), Vector(0, 0, 1), 2.1), False)
sketch8.addGeometry(Part.Circle(Vector(13.3, -24.1, 0), Vector(0, 0, 1), 2.1), False)
sketch8.addGeometry(Part.Circle(Vector(16.6, -17.6, 0), Vector(0, 0, 1), 2.1), False)
sketch8.addGeometry(Part.Circle(Vector(19.8, -24.1, 0), Vector(0, 0, 1), 2.1), False)
sketch8.addGeometry(Part.Circle(Vector(23.1, -17.6, 0), Vector(0, 0, 1), 2.1), False)
sketch8.addGeometry(Part.Circle(Vector(26.3, -24.1, 0), Vector(0, 0, 1), 2.1), False)
sketch8.addGeometry(Part.Circle(Vector(29.6, -17.6, 0), Vector(0, 0, 1), 2.1), False)
sketch8.addGeometry(Part.Circle(Vector(32.8, -24.1, 0), Vector(0, 0, 1), 2.1), False)
sketch8.addGeometry(Part.Circle(Vector(36, -17.6, 0), Vector(0, 0, 1), 2.1), False)
sketch8.addConstraint(Sketcher.Constraint("Equal", 0, 1))
sketch8.addConstraint(Sketcher.Constraint("Equal", 1, 2))
sketch8.addConstraint(Sketcher.Constraint("Equal", 2, 3))
sketch8.addConstraint(Sketcher.Constraint("Equal", 3, 4))
sketch8.addConstraint(Sketcher.Constraint("Equal", 4, 5))
sketch8.addConstraint(Sketcher.Constraint("Equal", 5, 6))
sketch8.addConstraint(Sketcher.Constraint("Equal", 6, 7))
sketch8.addConstraint(Sketcher.Constraint("Equal", 7, 8))
sketch8.addConstraint(Sketcher.Constraint("Equal", 8, 9))
sketch8.addConstraint(Sketcher.Constraint("Equal", 9, 10))
sketch8.addConstraint(Sketcher.Constraint("Equal", 10, 11))
sketch8.addConstraint(Sketcher.Constraint("Equal", 11, 12))
sketch8.addConstraint(Sketcher.Constraint("Equal", 12, 13))
sketch8.addConstraint(Sketcher.Constraint("Equal", 13, 14))
sketch8.addConstraint(Sketcher.Constraint("Equal", 14, 15))
sketch8.addConstraint(Sketcher.Constraint("Equal", 15, 16))
sketch8.addConstraint(Sketcher.Constraint("Equal", 16, 17))
sketch8.addConstraint(Sketcher.Constraint("Equal", 17, 18))
sketch8.addConstraint(Sketcher.Constraint("Equal", 18, 19))
sketch8.addConstraint(Sketcher.Constraint("Equal", 19, 20))
sketch8.addConstraint(Sketcher.Constraint("Equal", 20, 21))
sketch8.addConstraint(Sketcher.Constraint("Equal", 21, 22))
sketch8.addConstraint(Sketcher.Constraint("Equal", 22, 23))
sketch8.addConstraint(Sketcher.Constraint("Equal", 23, 24))
sketch8.addConstraint(Sketcher.Constraint("Equal", 24, 25))
sketch8.addConstraint(Sketcher.Constraint("Equal", 25, 26))
sketch8.addConstraint(Sketcher.Constraint("Equal", 26, 27))
sketch8.addConstraint(Sketcher.Constraint("Equal", 27, 28))
sketch8.addConstraint(Sketcher.Constraint("Equal", 28, 29))
sketch8.addConstraint(Sketcher.Constraint("Equal", 29, 30))
sketch8.addConstraint(Sketcher.Constraint("Equal", 30, 31))
sketch8.addConstraint(Sketcher.Constraint("Equal", 31, 32))
sketch8.addConstraint(Sketcher.Constraint("Equal", 32, 33))
sketch8.addConstraint(Sketcher.Constraint("Equal", 33, 34))
sketch8.addConstraint(Sketcher.Constraint("Equal", 34, 35))
sketch8.addConstraint(Sketcher.Constraint("Equal", 35, 36))
sketch8.addConstraint(Sketcher.Constraint("Equal", 36, 37))
sketch8.addConstraint(Sketcher.Constraint("Equal", 37, 38))
sketch8.addConstraint(Sketcher.Constraint("Equal", 38, 39))
sketch8.addConstraint(Sketcher.Constraint("Horizontal", 2, 3, 8, 3))
sketch8.addConstraint(Sketcher.Constraint("Horizontal", 3, 3, 9, 3))
sketch8.addConstraint(Sketcher.Constraint("Horizontal", 4, 3, 10, 3))
sketch8.addConstraint(Sketcher.Constraint("Horizontal", 5, 3, 11, 3))
sketch8.addConstraint(Sketcher.Constraint("Horizontal", 6, 3, 12, 3))
sketch8.addConstraint(Sketcher.Constraint("Horizontal", 7, 3, 13, 3))
sketch8.addConstraint(Sketcher.Constraint("Horizontal", 8, 3, 14, 3))
sketch8.addConstraint(Sketcher.Constraint("Horizontal", 9, 3, 15, 3))
sketch8.addConstraint(Sketcher.Constraint("Horizontal", 10, 3, 16, 3))
sketch8.addConstraint(Sketcher.Constraint("Horizontal", 11, 3, 17, 3))
sketch8.addConstraint(Sketcher.Constraint("Horizontal", 12, 3, 18, 3))
sketch8.addConstraint(Sketcher.Constraint("Horizontal", 13, 3, 19, 3))
sketch8.addConstraint(Sketcher.Constraint("Horizontal", 14, 3, 20, 3))
sketch8.addConstraint(Sketcher.Constraint("Horizontal", 15, 3, 21, 3))
sketch8.addConstraint(Sketcher.Constraint("Horizontal", 16, 3, 22, 3))
sketch8.addConstraint(Sketcher.Constraint("Horizontal", 17, 3, 23, 3))
sketch8.addConstraint(Sketcher.Constraint("Horizontal", 18, 3, 24, 3))
sketch8.addConstraint(Sketcher.Constraint("Horizontal", 19, 3, 25, 3))
sketch8.addConstraint(Sketcher.Constraint("Horizontal", 20, 3, 26, 3))
sketch8.addConstraint(Sketcher.Constraint("Horizontal", 21, 3, 27, 3))
sketch8.addConstraint(Sketcher.Constraint("Horizontal", 22, 3, 28, 3))
sketch8.addConstraint(Sketcher.Constraint("Horizontal", 23, 3, 29, 3))
sketch8.addConstraint(Sketcher.Constraint("Horizontal", 24, 3, 30, 3))
sketch8.addConstraint(Sketcher.Constraint("Horizontal", 25, 3, 31, 3))
sketch8.addConstraint(Sketcher.Constraint("Horizontal", 0, 3, 32, 3))
sketch8.addConstraint(Sketcher.Constraint("Horizontal", 1, 3, 33, 3))
sketch8.addConstraint(Sketcher.Constraint("Horizontal", 32, 3, 34, 3))
sketch8.addConstraint(Sketcher.Constraint("Horizontal", 33, 3, 35, 3))
sketch8.addConstraint(Sketcher.Constraint("Horizontal", 34, 3, 36, 3))
sketch8.addConstraint(Sketcher.Constraint("Horizontal", 35, 3, 37, 3))
sketch8.addConstraint(Sketcher.Constraint("Horizontal", 36, 3, 38, 3))
sketch8.addConstraint(Sketcher.Constraint("Horizontal", 37, 3, 39, 3))
sketch8.addConstraint(Sketcher.Constraint("Vertical", 0, 3, 2, 3))
sketch8.addConstraint(Sketcher.Constraint("Vertical", 1, 3, 3, 3))
sketch8.addConstraint(Sketcher.Constraint("Vertical", 2, 3, 4, 3))
sketch8.addConstraint(Sketcher.Constraint("Vertical", 3, 3, 5, 3))
sketch8.addConstraint(Sketcher.Constraint("Vertical", 4, 3, 6, 3))
sketch8.addConstraint(Sketcher.Constraint("Vertical", 5, 3, 7, 3))
sketch8.addConstraint(Sketcher.Constraint("Vertical", 8, 3, 10, 3))
sketch8.addConstraint(Sketcher.Constraint("Vertical", 9, 3, 11, 3))
sketch8.addConstraint(Sketcher.Constraint("Vertical", 10, 3, 12, 3))
sketch8.addConstraint(Sketcher.Constraint("Vertical", 11, 3, 13, 3))
sketch8.addConstraint(Sketcher.Constraint("Vertical", 14, 3, 16, 3))
sketch8.addConstraint(Sketcher.Constraint("Vertical", 15, 3, 17, 3))
sketch8.addConstraint(Sketcher.Constraint("Vertical", 16, 3, 18, 3))
sketch8.addConstraint(Sketcher.Constraint("Vertical", 17, 3, 19, 3))
sketch8.addConstraint(Sketcher.Constraint("Vertical", 20, 3, 22, 3))
sketch8.addConstraint(Sketcher.Constraint("Vertical", 21, 3, 23, 3))
sketch8.addConstraint(Sketcher.Constraint("Vertical", 22, 3, 24, 3))
sketch8.addConstraint(Sketcher.Constraint("Vertical", 23, 3, 25, 3))
sketch8.addConstraint(Sketcher.Constraint("Vertical", 26, 3, 28, 3))
sketch8.addConstraint(Sketcher.Constraint("Vertical", 27, 3, 29, 3))
sketch8.addConstraint(Sketcher.Constraint("Vertical", 28, 3, 30, 3))
sketch8.addConstraint(Sketcher.Constraint("Vertical", 29, 3, 31, 3))
sketch8.addConstraint(Sketcher.Constraint("Vertical", 12, 3, 32, 3))
sketch8.addConstraint(Sketcher.Constraint("Vertical", 13, 3, 33, 3))
sketch8.addConstraint(Sketcher.Constraint("Vertical", 18, 3, 34, 3))
sketch8.addConstraint(Sketcher.Constraint("Vertical", 19, 3, 35, 3))
sketch8.addConstraint(Sketcher.Constraint("Vertical", 24, 3, 36, 3))
sketch8.addConstraint(Sketcher.Constraint("Vertical", 25, 3, 37, 3))
sketch8.addConstraint(Sketcher.Constraint("Vertical", 30, 3, 38, 3))
sketch8.addConstraint(Sketcher.Constraint("Vertical", 31, 3, 39, 3))
sketch8.addConstraint(Sketcher.Constraint("Diameter", 0, Q("4.3 mm")))
sketch8.addConstraint(Sketcher.Constraint("DistanceY", 0, 3, 2, 3, Q("13 mm")))
sketch8.addConstraint(Sketcher.Constraint("DistanceY", 1, 3, 3, 3, Q("13 mm")))
sketch8.addConstraint(Sketcher.Constraint("DistanceY", 2, 3, 4, 3, Q("13 mm")))
sketch8.addConstraint(Sketcher.Constraint("DistanceY", 3, 3, 5, 3, Q("13 mm")))
sketch8.addConstraint(Sketcher.Constraint("DistanceY", 4, 3, 6, 3, Q("13 mm")))
sketch8.addConstraint(Sketcher.Constraint("DistanceY", 5, 3, 7, 3, Q("13 mm")))
sketch8.addConstraint(Sketcher.Constraint("DistanceX", 2, 3, 14, 3, Q("13 mm")))
sketch8.addConstraint(Sketcher.Constraint("DistanceX", 3, 3, 15, 3, Q("13 mm")))
sketch8.addConstraint(Sketcher.Constraint("DistanceX", 8, 3, 20, 3, Q("13 mm")))
sketch8.addConstraint(Sketcher.Constraint("DistanceX", 9, 3, 21, 3, Q("13 mm")))
sketch8.addConstraint(Sketcher.Constraint("DistanceX", 14, 3, 26, 3, Q("13 mm")))
sketch8.addConstraint(Sketcher.Constraint("DistanceX", 15, 3, 27, 3, Q("13 mm")))
sketch8.addConstraint(Sketcher.Constraint("DistanceX", -1, 1, 0, 3, Q("6.8 mm")))
sketch8.addConstraint(Sketcher.Constraint("DistanceY", 0, 3, -1, 1, Q("24.1 mm")))
sketch8.addConstraint(Sketcher.Constraint("DistanceY", 1, 3, -1, 1, Q("17.6 mm")))
sketch8.addConstraint(Sketcher.Constraint("DistanceX", -1, 1, 8, 3, Q("13.3 mm")))
sketch8.addConstraint(Sketcher.Constraint("DistanceX", 3, 3, 9, 3, Q("6.5 mm")))
sketch8.addConstraint(Sketcher.Constraint("DistanceX", -1, 1, 1, 3, Q("10.05 mm")))
sketch8.setExpression("Constraints[101]", "Params.sketch8_diameter")
pocket5 = body2.newObject("PartDesign::Pocket", "Pocket004")
pocket5.Profile = sketch8
pocket5.setExpression("Length", "Params.pocket5_length")
pocket5.Reversed = True

doc.recompute()
